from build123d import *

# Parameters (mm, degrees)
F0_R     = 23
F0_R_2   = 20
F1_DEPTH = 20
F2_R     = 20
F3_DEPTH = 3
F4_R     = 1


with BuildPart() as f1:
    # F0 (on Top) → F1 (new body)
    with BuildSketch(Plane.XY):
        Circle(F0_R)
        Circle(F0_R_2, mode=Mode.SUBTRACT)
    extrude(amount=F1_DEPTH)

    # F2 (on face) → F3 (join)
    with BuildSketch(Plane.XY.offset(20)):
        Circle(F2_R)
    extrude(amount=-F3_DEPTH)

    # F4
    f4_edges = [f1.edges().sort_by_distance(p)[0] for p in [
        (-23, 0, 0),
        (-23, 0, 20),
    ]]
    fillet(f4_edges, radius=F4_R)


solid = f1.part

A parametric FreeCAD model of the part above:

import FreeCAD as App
import Part
import Sketcher
from FreeCAD import Vector
Q = App.Units.Quantity


def edges_at(feature, points):
    """Names of the edges that pass closest to the given points."""
    edges = feature.Shape.Edges
    near = lambda p: min(range(len(edges)), key=lambda i: edges[i].distToShape(Part.Vertex(*p))[0])
    return sorted({f"Edge{near(p) + 1}" for p in points})

doc = App.newDocument("Part")
params = doc.addObject("Spreadsheet::Sheet", "Params")
for row, (alias, value) in enumerate([
    ("sketch1_diameter", "46 mm"),
    ("sketch1_diameter2", "40 mm"),
    ("pad1_length", "20 mm"),
    ("sketch2_diameter", "40 mm"),
    ("pad2_length", "3 mm"),
    ("fillet_radius", "1 mm"),
], start=1):
    params.set(f"A{row}", alias)
    params.set(f"B{row}", "=" + value)
    params.setAlias(f"B{row}", alias)

body = doc.addObject("PartDesign::Body", "Body")

sketch1 = body.newObject("Sketcher::SketchObject", "Sketch")
sketch1.AttachmentSupport = (doc.getObject("XY_Plane"), [""])
sketch1.MapMode = "FlatFace"
sketch1.addGeometry(Part.Circle(Vector(0, 0, 0), Vector(0, 0, 1), 23), False)
sketch1.addGeometry(Part.Circle(Vector(0, 0, 0), Vector(0, 0, 1), 20), False)
sketch1.addConstraint(Sketcher.Constraint("Coincident", 0, 3, -1, 1))
sketch1.addConstraint(Sketcher.Constraint("Coincident", 1, 3, -1, 1))
sketch1.addConstraint(Sketcher.Constraint("Diameter", 0, Q("46 mm")))
sketch1.addConstraint(Sketcher.Constraint("Diameter", 1, Q("40 mm")))
sketch1.setExpression("Constraints[2]", "Params.sketch1_diameter")
sketch1.setExpression("Constraints[3]", "Params.sketch1_diameter2")
pad1 = body.newObject("PartDesign::Pad", "Pad")
pad1.Profile = sketch1
pad1.setExpression("Length", "Params.pad1_length")

sketch2 = body.newObject("Sketcher::SketchObject", "Sketch001")
sketch2.AttachmentSupport = (doc.getObject("XY_Plane"), [""])
sketch2.MapMode = "FlatFace"
sketch2.AttachmentOffset = App.Placement(Vector(0, 0, 20), App.Rotation())
sketch2.addGeometry(Part.Circle(Vector(0, 0, 0), Vector(0, 0, 1), 20), False)
sketch2.addConstraint(Sketcher.Constraint("Coincident", 0, 3, -1, 1))
sketch2.addConstraint(Sketcher.Constraint("Diameter", 0, Q("40 mm")))
sketch2.setExpression("Constraints[1]", "Params.sketch2_diameter")
pad2 = body.newObject("PartDesign::Pad", "Pad001")
pad2.Profile = sketch2
pad2.setExpression("Length", "Params.pad2_length")
pad2.Reversed = True
doc.recompute()

fillet = body.newObject("PartDesign::Fillet", "Fillet")
fillet.Base = (pad2, edges_at(pad2, [(-23, 0, 0), (-23, 0, 20)]))
fillet.setExpression("Radius", "Params.fillet_radius")

doc.recompute()
